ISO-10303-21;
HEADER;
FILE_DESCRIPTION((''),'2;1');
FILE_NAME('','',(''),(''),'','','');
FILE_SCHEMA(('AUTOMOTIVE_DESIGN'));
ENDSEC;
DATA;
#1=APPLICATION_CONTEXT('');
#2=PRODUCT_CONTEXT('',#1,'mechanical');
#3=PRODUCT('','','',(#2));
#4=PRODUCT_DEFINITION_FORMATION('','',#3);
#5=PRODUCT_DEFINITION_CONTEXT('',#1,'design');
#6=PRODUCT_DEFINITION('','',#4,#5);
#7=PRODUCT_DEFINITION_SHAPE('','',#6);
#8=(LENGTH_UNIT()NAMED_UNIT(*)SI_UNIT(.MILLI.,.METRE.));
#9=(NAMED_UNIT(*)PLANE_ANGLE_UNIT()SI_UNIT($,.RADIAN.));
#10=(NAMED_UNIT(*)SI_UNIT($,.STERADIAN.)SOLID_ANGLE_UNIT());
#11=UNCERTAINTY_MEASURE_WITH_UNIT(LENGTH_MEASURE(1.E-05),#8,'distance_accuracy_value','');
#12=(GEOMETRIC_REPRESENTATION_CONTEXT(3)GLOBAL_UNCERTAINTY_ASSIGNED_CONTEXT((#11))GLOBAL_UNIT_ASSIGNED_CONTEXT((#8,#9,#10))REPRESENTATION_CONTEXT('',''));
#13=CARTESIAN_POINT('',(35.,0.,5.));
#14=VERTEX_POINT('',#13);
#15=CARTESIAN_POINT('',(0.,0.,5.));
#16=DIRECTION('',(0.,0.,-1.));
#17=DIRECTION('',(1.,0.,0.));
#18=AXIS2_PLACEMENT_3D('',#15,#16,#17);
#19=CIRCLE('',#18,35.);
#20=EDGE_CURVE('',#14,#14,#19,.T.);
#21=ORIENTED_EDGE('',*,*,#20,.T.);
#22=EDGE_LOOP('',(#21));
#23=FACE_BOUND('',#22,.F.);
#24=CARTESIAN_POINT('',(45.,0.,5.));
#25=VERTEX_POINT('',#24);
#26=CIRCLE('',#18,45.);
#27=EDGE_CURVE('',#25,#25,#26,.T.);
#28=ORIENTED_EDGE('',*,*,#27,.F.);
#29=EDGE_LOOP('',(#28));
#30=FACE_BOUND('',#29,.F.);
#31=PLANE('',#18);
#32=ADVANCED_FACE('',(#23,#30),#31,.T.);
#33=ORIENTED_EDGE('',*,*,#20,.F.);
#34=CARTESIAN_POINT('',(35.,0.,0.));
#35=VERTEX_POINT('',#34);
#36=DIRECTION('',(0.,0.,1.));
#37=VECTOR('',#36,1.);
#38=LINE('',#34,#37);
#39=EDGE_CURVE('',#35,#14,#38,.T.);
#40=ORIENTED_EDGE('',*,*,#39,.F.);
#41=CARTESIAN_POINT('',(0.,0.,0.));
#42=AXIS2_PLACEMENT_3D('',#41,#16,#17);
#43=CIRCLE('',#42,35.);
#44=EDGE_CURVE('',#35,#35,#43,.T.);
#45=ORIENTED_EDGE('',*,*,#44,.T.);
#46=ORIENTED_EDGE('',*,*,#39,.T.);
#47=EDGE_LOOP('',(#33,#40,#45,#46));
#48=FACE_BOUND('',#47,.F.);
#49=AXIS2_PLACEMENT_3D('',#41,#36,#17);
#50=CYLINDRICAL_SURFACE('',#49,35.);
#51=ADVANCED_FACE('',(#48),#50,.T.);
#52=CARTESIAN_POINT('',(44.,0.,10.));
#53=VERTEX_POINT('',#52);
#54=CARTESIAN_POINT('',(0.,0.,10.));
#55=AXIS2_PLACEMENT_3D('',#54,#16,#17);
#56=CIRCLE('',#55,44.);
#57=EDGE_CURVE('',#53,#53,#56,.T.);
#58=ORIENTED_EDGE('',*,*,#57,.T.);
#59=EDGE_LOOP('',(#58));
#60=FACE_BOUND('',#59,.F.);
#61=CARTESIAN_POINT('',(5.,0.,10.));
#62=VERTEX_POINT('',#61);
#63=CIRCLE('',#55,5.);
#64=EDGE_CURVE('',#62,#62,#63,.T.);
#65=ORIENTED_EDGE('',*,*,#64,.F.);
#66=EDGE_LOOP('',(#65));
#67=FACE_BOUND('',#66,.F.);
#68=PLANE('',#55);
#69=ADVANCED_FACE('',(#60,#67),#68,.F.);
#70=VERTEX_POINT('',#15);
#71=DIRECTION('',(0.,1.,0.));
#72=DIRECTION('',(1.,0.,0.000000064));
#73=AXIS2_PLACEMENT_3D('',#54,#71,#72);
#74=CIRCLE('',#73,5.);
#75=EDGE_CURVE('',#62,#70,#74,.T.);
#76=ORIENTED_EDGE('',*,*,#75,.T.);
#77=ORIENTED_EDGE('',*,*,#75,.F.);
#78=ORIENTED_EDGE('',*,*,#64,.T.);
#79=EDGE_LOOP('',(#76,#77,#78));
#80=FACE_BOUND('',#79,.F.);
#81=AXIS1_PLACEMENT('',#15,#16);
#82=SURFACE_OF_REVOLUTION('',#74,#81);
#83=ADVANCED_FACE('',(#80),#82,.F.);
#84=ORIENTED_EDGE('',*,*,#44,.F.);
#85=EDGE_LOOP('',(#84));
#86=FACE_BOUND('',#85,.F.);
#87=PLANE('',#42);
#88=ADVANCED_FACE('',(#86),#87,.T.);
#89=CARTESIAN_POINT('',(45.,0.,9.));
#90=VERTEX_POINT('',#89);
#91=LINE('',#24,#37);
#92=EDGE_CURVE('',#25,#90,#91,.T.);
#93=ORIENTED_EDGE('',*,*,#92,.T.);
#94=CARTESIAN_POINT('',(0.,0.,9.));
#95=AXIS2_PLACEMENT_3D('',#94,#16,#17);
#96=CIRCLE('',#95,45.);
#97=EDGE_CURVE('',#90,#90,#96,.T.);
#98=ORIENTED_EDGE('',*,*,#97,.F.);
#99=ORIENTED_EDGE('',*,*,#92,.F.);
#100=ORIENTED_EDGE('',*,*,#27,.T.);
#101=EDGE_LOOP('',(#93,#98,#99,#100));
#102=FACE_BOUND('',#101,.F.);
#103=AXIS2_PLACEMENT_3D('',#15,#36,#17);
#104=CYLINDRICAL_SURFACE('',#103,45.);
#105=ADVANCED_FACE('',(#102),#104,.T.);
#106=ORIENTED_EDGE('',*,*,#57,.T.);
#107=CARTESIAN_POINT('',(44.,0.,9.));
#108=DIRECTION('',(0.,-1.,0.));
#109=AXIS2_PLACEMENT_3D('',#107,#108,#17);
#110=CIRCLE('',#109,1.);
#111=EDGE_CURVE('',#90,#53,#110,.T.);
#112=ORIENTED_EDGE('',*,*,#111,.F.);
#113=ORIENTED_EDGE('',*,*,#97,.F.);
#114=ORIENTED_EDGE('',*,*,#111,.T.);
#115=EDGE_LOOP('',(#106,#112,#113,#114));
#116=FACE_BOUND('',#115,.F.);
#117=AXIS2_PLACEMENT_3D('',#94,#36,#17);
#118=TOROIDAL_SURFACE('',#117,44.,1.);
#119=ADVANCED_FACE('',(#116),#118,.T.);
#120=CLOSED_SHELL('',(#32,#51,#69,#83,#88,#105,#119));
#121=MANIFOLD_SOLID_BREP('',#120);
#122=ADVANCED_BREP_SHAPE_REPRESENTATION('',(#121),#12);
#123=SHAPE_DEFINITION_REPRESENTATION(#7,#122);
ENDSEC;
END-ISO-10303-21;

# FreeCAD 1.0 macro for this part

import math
import FreeCAD as App
import Part
import Sketcher
from FreeCAD import Vector
Q = App.Units.Quantity


def edges_at(feature, points):
    """Names of the edges that pass closest to the given points."""
    edges = feature.Shape.Edges
    near = lambda p: min(range(len(edges)), key=lambda i: edges[i].distToShape(Part.Vertex(*p))[0])
    return sorted({f"Edge{near(p) + 1}" for p in points})

doc = App.newDocument("Part")
body = doc.addObject("PartDesign::Body", "Body")

# Sketch on XZ plane
sketch1 = body.newObject("Sketcher::SketchObject", "Sketch")
sketch1.AttachmentSupport = (doc.getObject("XZ_Plane"), [""])
sketch1.MapMode = "FlatFace"
sketch1.addGeometry([
    Part.LineSegment(Vector(0, 5, 0), Vector(0, 0, 0)),  # 0
    Part.LineSegment(Vector(0, 0, 0), Vector(35, 0, 0)),  # 1
    Part.LineSegment(Vector(35, 0, 0), Vector(35, 5, 0)),  # 2
    Part.LineSegment(Vector(35, 5, 0), Vector(45, 5, 0)),  # 3
    Part.LineSegment(Vector(45, 5, 0), Vector(45, 10, 0)),  # 4
    Part.LineSegment(Vector(45, 10, 0), Vector(5, 10, 0)),  # 5
    Part.ArcOfCircle(Part.Circle(Vector(0, 10, 0), Vector(0, 0, 1), 5), math.radians(-90.000004), math.radians(0.000004)),  # 6
], False)
sketch1.addConstraint([
    Sketcher.Constraint("Coincident", 0, 2, 1, 1),
    Sketcher.Constraint("Coincident", 1, 2, 2, 1),
    Sketcher.Constraint("Coincident", 2, 2, 3, 1),
    Sketcher.Constraint("Coincident", 3, 2, 4, 1),
    Sketcher.Constraint("Coincident", 4, 2, 5, 1),
    Sketcher.Constraint("Coincident", 5, 2, 6, 2),
    Sketcher.Constraint("Coincident", 6, 1, 0, 1),
    Sketcher.Constraint("Vertical", 0),
    Sketcher.Constraint("Horizontal", 1),
    Sketcher.Constraint("Vertical", 2),
    Sketcher.Constraint("Horizontal", 3),
    Sketcher.Constraint("Vertical", 4),
    Sketcher.Constraint("Horizontal", 5),
    Sketcher.Constraint("Coincident", 0, 2, -1, 1),
    Sketcher.Constraint("PointOnObject", 6, 3, -2),
    Sketcher.Constraint("Horizontal", 6, 3, 4, 2),
    Sketcher.Constraint("Horizontal", 3, 2, 6, 1),
    Sketcher.Constraint("Equal", 2, 4),
    Sketcher.Constraint("Radius", 6, Q("5 mm")),
    Sketcher.Constraint("DistanceX", 1, 1, 1, 2, Q("35 mm")),
    Sketcher.Constraint("DistanceX", 3, 1, 3, 2, Q("10 mm")),
])
revolution = body.newObject("PartDesign::Revolution", "Revolution")
revolution.Profile = sketch1
revolution.ReferenceAxis = (sketch1, ["V_Axis"])
revolution.Angle = 360
doc.recompute()

fillet = body.newObject("PartDesign::Fillet", "Fillet")
fillet.Base = (revolution, edges_at(revolution, [(-45, 0, 10)]))
fillet.Radius = 1

doc.recompute()
